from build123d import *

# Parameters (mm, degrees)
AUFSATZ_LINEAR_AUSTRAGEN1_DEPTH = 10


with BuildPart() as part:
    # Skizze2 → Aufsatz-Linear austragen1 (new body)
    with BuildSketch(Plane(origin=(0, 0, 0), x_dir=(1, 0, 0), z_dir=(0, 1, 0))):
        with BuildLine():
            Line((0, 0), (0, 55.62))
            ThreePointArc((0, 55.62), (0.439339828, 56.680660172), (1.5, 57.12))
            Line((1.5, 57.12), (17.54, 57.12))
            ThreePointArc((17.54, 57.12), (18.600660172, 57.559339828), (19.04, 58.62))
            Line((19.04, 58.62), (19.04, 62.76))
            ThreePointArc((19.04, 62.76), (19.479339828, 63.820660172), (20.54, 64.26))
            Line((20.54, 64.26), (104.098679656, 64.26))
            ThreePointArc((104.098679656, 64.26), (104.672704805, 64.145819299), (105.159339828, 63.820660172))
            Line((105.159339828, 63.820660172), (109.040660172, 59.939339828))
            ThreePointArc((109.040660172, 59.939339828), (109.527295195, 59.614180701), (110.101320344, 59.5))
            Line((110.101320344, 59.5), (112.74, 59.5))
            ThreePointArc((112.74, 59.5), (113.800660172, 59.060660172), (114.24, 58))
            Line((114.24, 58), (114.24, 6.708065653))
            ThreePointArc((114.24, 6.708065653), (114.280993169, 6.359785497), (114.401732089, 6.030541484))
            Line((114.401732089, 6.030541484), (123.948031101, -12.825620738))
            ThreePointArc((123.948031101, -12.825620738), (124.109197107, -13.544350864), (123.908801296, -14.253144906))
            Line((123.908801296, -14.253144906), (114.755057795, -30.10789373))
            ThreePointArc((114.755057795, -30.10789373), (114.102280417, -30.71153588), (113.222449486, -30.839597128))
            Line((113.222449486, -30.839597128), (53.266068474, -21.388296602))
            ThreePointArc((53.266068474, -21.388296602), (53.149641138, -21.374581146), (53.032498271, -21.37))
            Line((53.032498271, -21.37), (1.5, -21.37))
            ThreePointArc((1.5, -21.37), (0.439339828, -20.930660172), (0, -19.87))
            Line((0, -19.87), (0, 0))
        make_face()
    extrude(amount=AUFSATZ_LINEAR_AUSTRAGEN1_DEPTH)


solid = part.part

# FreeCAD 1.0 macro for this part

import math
import FreeCAD as App
import Part
import Sketcher
from FreeCAD import Vector
Q = App.Units.Quantity

doc = App.newDocument("Part")
body = doc.addObject("PartDesign::Body", "Body")

# Sketch on XZ plane
sketch1 = body.newObject("Sketcher::SketchObject", "Sketch")
sketch1.AttachmentSupport = (doc.getObject("XZ_Plane"), [""])
sketch1.MapMode = "FlatFace"
sketch1.addGeometry([
    Part.ArcOfCircle(Part.Circle(Vector(1.5, -55.62, 0), Vector(0, 0, 1), 1.5), math.radians(180), math.radians(270)),  # 0
    Part.LineSegment(Vector(0, -55.62, 0), Vector(0, 19.87, 0)),  # 1
    Part.ArcOfCircle(Part.Circle(Vector(1.5, 19.87, 0), Vector(0, 0, 1), 1.5), math.radians(90), math.radians(180)),  # 2
    Part.LineSegment(Vector(1.5, 21.37, 0), Vector(53.032498, 21.37, 0)),  # 3
    Part.ArcOfCircle(Part.Circle(Vector(53.032498, 22.87, 0), Vector(0, 0, 1), 1.5), math.radians(-90), math.radians(-81.041822)),  # 4
    Part.LineSegment(Vector(53.266068, 21.388297, 0), Vector(113.222449, 30.839597, 0)),  # 5
    Part.ArcOfCircle(Part.Circle(Vector(113.45602, 29.357894, 0), Vector(0, 0, 1), 1.5), math.radians(30), math.radians(98.958177)),  # 6
    Part.LineSegment(Vector(114.755058, 30.107894, 0), Vector(123.908801, 14.253145, 0)),  # 7
    Part.ArcOfCircle(Part.Circle(Vector(122.609763, 13.503145, 0), Vector(0, 0, 1), 1.5), math.radians(-26.851701), math.radians(30)),  # 8
    Part.LineSegment(Vector(123.948031, 12.825621, 0), Vector(114.401732, -6.030541, 0)),  # 9
    Part.ArcOfCircle(Part.Circle(Vector(115.74, -6.708066, 0), Vector(0, 0, 1), 1.5), math.radians(153.148299), math.radians(180)),  # 10
    Part.LineSegment(Vector(114.24, -6.708066, 0), Vector(114.24, -58, 0)),  # 11
    Part.ArcOfCircle(Part.Circle(Vector(112.74, -58, 0), Vector(0, 0, 1), 1.5), math.radians(-90), math.radians(0)),  # 12
    Part.LineSegment(Vector(112.74, -59.5, 0), Vector(110.10132, -59.5, 0)),  # 13
    Part.ArcOfCircle(Part.Circle(Vector(110.10132, -61, 0), Vector(0, 0, 1), 1.5), math.radians(90), math.radians(135)),  # 14
    Part.LineSegment(Vector(109.04066, -59.93934, 0), Vector(105.15934, -63.82066, 0)),  # 15
    Part.ArcOfCircle(Part.Circle(Vector(104.09868, -62.76, 0), Vector(0, 0, 1), 1.5), math.radians(-90), math.radians(-45)),  # 16
    Part.LineSegment(Vector(104.09868, -64.26, 0), Vector(20.54, -64.26, 0)),  # 17
    Part.ArcOfCircle(Part.Circle(Vector(20.54, -62.76, 0), Vector(0, 0, 1), 1.5), math.radians(180), math.radians(270)),  # 18
    Part.LineSegment(Vector(19.04, -62.76, 0), Vector(19.04, -58.62, 0)),  # 19
    Part.ArcOfCircle(Part.Circle(Vector(17.54, -58.62, 0), Vector(0, 0, 1), 1.5), math.radians(0), math.radians(90)),  # 20
    Part.LineSegment(Vector(17.54, -57.12, 0), Vector(1.5, -57.12, 0)),  # 21
], False)
sketch1.addConstraint([
    Sketcher.Constraint("Tangent", 0, 1, 1, 1),
    Sketcher.Constraint("Tangent", 1, 2, 2, 2),
    Sketcher.Constraint("Tangent", 2, 1, 3, 1),
    Sketcher.Constraint("Tangent", 3, 2, 4, 1),
    Sketcher.Constraint("Tangent", 4, 2, 5, 1),
    Sketcher.Constraint("Tangent", 5, 2, 6, 2),
    Sketcher.Constraint("Tangent", 6, 1, 7, 1),
    Sketcher.Constraint("Tangent", 7, 2, 8, 2),
    Sketcher.Constraint("Tangent", 8, 1, 9, 1),
    Sketcher.Constraint("Tangent", 9, 2, 10, 1),
    Sketcher.Constraint("Tangent", 10, 2, 11, 1),
    Sketcher.Constraint("Tangent", 11, 2, 12, 2),
    Sketcher.Constraint("Tangent", 12, 1, 13, 1),
    Sketcher.Constraint("Tangent", 13, 2, 14, 1),
    Sketcher.Constraint("Tangent", 14, 2, 15, 1),
    Sketcher.Constraint("Tangent", 15, 2, 16, 2),
    Sketcher.Constraint("Tangent", 16, 1, 17, 1),
    Sketcher.Constraint("Tangent", 17, 2, 18, 2),
    Sketcher.Constraint("Tangent", 18, 1, 19, 1),
    Sketcher.Constraint("Tangent", 19, 2, 20, 1),
    Sketcher.Constraint("Tangent", 20, 2, 21, 1),
    Sketcher.Constraint("Tangent", 21, 2, 0, 2),
    Sketcher.Constraint("Vertical", 1),
    Sketcher.Constraint("Horizontal", 3),
    Sketcher.Constraint("Vertical", 11),
    Sketcher.Constraint("Horizontal", 13),
    Sketcher.Constraint("Horizontal", 17),
    Sketcher.Constraint("Vertical", 19),
    Sketcher.Constraint("Horizontal", 21),
    Sketcher.Constraint("Equal", 0, 2),
    Sketcher.Constraint("Equal", 2, 4),
    Sketcher.Constraint("Equal", 4, 6),
    Sketcher.Constraint("Equal", 6, 8),
    Sketcher.Constraint("Equal", 8, 10),
    Sketcher.Constraint("Equal", 10, 12),
    Sketcher.Constraint("Equal", 12, 14),
    Sketcher.Constraint("Equal", 14, 16),
    Sketcher.Constraint("Equal", 16, 18),
    Sketcher.Constraint("Equal", 18, 20),
    Sketcher.Constraint("PointOnObject", 0, 1, -2),
    Sketcher.Constraint("Radius", 0, Q("1.5 mm")),
    Sketcher.Constraint("Angle", 7, Q("-60 deg")),
    Sketcher.Constraint("Angle", 15, Q("-135 deg")),
    Sketcher.Constraint("DistanceY", 12, 3, -1, 1, Q("58 mm")),
    Sketcher.Constraint("DistanceX", 21, 2, 21, 1, Q("16.04 mm")),
    Sketcher.Constraint("DistanceY", 1, 1, 1, 2, Q("75.49 mm")),
    Sketcher.Constraint("DistanceY", 19, 1, 19, 2, Q("4.14 mm")),
    Sketcher.Constraint("DistanceY", 0, 3, -1, 1, Q("55.62 mm")),
    Sketcher.Constraint("DistanceX", -1, 1, 10, 3, Q("115.74 mm")),
    Sketcher.Constraint("DistanceX", 3, 1, 3, 2, Q("51.532498 mm")),
    Sketcher.Constraint("DistanceX", 13, 2, 13, 1, Q("2.63868 mm")),
    Sketcher.Constraint("DistanceX", -1, 1, 7, 2, Q("123.908801 mm")),
    Sketcher.Constraint("DistanceX", 14, 3, 6, 3, Q("3.354699 mm")),
    Sketcher.Constraint("DistanceY", 4, 2, 5, 2, Q("9.451301 mm")),
    Sketcher.Constraint("DistanceX", 9, 2, 8, 1, Q("9.546299 mm")),
])
pad1 = body.newObject("PartDesign::Pad", "Pad")
pad1.Profile = sketch1
pad1.Length = 10
pad1.Reversed = True

doc.recompute()
